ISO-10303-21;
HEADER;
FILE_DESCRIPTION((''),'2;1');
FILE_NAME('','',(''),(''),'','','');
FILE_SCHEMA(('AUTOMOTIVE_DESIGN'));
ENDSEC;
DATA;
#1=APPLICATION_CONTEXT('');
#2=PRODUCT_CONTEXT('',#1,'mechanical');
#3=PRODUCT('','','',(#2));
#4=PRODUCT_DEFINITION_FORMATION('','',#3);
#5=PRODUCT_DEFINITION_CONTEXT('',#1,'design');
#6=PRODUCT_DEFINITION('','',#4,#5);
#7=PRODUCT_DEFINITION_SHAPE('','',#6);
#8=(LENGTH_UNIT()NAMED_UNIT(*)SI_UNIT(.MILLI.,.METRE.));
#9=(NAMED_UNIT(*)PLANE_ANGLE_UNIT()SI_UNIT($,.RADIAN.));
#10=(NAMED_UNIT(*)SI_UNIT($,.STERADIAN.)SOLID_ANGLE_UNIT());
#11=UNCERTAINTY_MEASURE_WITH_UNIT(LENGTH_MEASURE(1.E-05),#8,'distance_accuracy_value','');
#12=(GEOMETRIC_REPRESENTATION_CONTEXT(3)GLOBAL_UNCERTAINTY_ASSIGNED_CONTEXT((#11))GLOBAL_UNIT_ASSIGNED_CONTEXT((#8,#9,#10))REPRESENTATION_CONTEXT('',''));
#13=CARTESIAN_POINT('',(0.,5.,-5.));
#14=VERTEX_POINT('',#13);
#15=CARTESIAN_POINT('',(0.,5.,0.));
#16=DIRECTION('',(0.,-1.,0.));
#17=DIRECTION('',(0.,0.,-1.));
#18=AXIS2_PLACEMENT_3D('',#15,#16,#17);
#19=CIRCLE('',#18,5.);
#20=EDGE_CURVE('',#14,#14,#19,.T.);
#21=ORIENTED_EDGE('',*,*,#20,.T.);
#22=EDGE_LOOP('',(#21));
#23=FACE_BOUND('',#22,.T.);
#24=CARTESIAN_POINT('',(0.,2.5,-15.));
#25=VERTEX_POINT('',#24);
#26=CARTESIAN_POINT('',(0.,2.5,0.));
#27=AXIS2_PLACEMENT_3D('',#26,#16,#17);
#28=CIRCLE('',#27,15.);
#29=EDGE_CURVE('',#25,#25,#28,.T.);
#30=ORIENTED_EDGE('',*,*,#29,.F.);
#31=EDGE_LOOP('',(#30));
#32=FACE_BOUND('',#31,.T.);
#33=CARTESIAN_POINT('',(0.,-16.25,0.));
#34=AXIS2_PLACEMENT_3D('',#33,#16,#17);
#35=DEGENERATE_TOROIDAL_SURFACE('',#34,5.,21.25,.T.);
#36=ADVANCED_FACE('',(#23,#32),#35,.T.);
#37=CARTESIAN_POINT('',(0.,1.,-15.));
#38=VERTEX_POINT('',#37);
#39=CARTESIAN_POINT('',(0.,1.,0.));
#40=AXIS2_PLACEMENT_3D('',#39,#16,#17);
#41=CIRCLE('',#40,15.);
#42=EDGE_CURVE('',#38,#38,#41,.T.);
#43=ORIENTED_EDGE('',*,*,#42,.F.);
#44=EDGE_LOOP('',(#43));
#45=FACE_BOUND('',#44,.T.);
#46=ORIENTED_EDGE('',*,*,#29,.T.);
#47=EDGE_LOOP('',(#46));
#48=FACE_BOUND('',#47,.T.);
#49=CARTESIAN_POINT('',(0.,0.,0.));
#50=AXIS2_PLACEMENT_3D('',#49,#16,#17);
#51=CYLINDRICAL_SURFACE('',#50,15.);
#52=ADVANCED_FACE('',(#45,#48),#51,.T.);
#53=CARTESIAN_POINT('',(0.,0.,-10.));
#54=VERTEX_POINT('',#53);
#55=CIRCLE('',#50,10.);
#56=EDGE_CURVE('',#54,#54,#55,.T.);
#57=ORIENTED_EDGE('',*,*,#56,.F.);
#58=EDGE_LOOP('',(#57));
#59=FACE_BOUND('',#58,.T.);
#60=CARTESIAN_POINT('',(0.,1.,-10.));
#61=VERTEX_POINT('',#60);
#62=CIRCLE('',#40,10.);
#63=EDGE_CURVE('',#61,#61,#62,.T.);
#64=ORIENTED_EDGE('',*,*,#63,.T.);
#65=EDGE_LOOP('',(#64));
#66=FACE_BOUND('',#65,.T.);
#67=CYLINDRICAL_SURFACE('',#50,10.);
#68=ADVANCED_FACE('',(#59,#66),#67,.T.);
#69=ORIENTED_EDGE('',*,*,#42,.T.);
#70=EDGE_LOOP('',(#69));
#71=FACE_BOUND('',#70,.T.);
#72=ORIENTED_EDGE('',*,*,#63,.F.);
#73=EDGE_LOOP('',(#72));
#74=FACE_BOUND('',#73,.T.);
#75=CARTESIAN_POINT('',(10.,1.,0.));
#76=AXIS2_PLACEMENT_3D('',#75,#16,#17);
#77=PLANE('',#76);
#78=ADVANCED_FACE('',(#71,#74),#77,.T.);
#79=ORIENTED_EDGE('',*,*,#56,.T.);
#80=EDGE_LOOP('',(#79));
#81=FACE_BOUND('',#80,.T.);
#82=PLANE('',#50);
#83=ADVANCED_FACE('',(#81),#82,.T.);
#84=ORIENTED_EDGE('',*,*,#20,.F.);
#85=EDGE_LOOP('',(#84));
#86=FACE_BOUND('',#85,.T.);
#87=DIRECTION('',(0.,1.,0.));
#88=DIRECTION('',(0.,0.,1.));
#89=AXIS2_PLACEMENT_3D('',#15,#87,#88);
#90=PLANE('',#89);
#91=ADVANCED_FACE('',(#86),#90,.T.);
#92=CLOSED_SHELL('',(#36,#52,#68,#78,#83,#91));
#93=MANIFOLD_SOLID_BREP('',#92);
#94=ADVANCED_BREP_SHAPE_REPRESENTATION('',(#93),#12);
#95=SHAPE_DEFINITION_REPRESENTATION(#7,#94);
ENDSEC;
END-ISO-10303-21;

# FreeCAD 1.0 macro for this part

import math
import FreeCAD as App
import Part
import Sketcher

V = App.Vector

doc = App.newDocument("Part")
body = doc.addObject("PartDesign::Body", "Body")

# Sketch on XY plane
sketch1 = doc.addObject("Sketcher::SketchObject", "Sketch")
body.addObject(sketch1)
sketch1.AttachmentSupport = (doc.XY_Plane, [""])
sketch1.MapMode = "FlatFace"
sketch1.addGeometry(Part.LineSegment(V(0, 0, 0), V(10, 0, 0)), False)
sketch1.addGeometry(Part.LineSegment(V(10, 0, 0), V(10, 1, 0)), False)
sketch1.addGeometry(Part.LineSegment(V(10, 1, 0), V(15, 1, 0)), False)
sketch1.addGeometry(Part.LineSegment(V(15, 1, 0), V(15, 2.5, 0)), False)
sketch1.addGeometry(Part.ArcOfCircle(Part.Circle(V(5, -16.25, 0), V(0, 0, 1), 21.25), math.radians(61.927513), math.radians(90)), False)
sketch1.addGeometry(Part.LineSegment(V(5, 5, 0), V(0, 5, 0)), False)
sketch1.addGeometry(Part.LineSegment(V(0, 5, 0), V(0, 0, 0)), False)
sketch1.addConstraint(Sketcher.Constraint("Coincident", 0, 2, 1, 1))
sketch1.addConstraint(Sketcher.Constraint("Coincident", 1, 2, 2, 1))
sketch1.addConstraint(Sketcher.Constraint("Coincident", 2, 2, 3, 1))
sketch1.addConstraint(Sketcher.Constraint("Coincident", 3, 2, 4, 1))
sketch1.addConstraint(Sketcher.Constraint("Tangent", 4, 2, 5, 1))
sketch1.addConstraint(Sketcher.Constraint("Coincident", 5, 2, 6, 1))
sketch1.addConstraint(Sketcher.Constraint("Coincident", 6, 2, 0, 1))
sketch1.addConstraint(Sketcher.Constraint("Horizontal", 0))
sketch1.addConstraint(Sketcher.Constraint("Vertical", 1))
sketch1.addConstraint(Sketcher.Constraint("Horizontal", 2))
sketch1.addConstraint(Sketcher.Constraint("Vertical", 3))
sketch1.addConstraint(Sketcher.Constraint("Horizontal", 5))
sketch1.addConstraint(Sketcher.Constraint("Vertical", 6))
sketch1.addConstraint(Sketcher.Constraint("Coincident", 6, 2, -1, 1))
sketch1.addConstraint(Sketcher.Constraint("Equal", 2, 5))
sketch1.addConstraint(Sketcher.Constraint("Equal", 5, 6))
sketch1.addConstraint(Sketcher.Constraint("DistanceX", 0, 1, 0, 2, 10.0))
sketch1.addConstraint(Sketcher.Constraint("DistanceX", 2, 1, 2, 2, 5.0))
sketch1.addConstraint(Sketcher.Constraint("DistanceY", 1, 1, 1, 2, 1.0))
sketch1.addConstraint(Sketcher.Constraint("Radius", 4, 21.25))
revolution = doc.addObject("PartDesign::Revolution", "Revolution")
body.addObject(revolution)
revolution.Profile = sketch1
revolution.ReferenceAxis = (sketch1, ["V_Axis"])
revolution.Angle = 360

doc.recompute()
